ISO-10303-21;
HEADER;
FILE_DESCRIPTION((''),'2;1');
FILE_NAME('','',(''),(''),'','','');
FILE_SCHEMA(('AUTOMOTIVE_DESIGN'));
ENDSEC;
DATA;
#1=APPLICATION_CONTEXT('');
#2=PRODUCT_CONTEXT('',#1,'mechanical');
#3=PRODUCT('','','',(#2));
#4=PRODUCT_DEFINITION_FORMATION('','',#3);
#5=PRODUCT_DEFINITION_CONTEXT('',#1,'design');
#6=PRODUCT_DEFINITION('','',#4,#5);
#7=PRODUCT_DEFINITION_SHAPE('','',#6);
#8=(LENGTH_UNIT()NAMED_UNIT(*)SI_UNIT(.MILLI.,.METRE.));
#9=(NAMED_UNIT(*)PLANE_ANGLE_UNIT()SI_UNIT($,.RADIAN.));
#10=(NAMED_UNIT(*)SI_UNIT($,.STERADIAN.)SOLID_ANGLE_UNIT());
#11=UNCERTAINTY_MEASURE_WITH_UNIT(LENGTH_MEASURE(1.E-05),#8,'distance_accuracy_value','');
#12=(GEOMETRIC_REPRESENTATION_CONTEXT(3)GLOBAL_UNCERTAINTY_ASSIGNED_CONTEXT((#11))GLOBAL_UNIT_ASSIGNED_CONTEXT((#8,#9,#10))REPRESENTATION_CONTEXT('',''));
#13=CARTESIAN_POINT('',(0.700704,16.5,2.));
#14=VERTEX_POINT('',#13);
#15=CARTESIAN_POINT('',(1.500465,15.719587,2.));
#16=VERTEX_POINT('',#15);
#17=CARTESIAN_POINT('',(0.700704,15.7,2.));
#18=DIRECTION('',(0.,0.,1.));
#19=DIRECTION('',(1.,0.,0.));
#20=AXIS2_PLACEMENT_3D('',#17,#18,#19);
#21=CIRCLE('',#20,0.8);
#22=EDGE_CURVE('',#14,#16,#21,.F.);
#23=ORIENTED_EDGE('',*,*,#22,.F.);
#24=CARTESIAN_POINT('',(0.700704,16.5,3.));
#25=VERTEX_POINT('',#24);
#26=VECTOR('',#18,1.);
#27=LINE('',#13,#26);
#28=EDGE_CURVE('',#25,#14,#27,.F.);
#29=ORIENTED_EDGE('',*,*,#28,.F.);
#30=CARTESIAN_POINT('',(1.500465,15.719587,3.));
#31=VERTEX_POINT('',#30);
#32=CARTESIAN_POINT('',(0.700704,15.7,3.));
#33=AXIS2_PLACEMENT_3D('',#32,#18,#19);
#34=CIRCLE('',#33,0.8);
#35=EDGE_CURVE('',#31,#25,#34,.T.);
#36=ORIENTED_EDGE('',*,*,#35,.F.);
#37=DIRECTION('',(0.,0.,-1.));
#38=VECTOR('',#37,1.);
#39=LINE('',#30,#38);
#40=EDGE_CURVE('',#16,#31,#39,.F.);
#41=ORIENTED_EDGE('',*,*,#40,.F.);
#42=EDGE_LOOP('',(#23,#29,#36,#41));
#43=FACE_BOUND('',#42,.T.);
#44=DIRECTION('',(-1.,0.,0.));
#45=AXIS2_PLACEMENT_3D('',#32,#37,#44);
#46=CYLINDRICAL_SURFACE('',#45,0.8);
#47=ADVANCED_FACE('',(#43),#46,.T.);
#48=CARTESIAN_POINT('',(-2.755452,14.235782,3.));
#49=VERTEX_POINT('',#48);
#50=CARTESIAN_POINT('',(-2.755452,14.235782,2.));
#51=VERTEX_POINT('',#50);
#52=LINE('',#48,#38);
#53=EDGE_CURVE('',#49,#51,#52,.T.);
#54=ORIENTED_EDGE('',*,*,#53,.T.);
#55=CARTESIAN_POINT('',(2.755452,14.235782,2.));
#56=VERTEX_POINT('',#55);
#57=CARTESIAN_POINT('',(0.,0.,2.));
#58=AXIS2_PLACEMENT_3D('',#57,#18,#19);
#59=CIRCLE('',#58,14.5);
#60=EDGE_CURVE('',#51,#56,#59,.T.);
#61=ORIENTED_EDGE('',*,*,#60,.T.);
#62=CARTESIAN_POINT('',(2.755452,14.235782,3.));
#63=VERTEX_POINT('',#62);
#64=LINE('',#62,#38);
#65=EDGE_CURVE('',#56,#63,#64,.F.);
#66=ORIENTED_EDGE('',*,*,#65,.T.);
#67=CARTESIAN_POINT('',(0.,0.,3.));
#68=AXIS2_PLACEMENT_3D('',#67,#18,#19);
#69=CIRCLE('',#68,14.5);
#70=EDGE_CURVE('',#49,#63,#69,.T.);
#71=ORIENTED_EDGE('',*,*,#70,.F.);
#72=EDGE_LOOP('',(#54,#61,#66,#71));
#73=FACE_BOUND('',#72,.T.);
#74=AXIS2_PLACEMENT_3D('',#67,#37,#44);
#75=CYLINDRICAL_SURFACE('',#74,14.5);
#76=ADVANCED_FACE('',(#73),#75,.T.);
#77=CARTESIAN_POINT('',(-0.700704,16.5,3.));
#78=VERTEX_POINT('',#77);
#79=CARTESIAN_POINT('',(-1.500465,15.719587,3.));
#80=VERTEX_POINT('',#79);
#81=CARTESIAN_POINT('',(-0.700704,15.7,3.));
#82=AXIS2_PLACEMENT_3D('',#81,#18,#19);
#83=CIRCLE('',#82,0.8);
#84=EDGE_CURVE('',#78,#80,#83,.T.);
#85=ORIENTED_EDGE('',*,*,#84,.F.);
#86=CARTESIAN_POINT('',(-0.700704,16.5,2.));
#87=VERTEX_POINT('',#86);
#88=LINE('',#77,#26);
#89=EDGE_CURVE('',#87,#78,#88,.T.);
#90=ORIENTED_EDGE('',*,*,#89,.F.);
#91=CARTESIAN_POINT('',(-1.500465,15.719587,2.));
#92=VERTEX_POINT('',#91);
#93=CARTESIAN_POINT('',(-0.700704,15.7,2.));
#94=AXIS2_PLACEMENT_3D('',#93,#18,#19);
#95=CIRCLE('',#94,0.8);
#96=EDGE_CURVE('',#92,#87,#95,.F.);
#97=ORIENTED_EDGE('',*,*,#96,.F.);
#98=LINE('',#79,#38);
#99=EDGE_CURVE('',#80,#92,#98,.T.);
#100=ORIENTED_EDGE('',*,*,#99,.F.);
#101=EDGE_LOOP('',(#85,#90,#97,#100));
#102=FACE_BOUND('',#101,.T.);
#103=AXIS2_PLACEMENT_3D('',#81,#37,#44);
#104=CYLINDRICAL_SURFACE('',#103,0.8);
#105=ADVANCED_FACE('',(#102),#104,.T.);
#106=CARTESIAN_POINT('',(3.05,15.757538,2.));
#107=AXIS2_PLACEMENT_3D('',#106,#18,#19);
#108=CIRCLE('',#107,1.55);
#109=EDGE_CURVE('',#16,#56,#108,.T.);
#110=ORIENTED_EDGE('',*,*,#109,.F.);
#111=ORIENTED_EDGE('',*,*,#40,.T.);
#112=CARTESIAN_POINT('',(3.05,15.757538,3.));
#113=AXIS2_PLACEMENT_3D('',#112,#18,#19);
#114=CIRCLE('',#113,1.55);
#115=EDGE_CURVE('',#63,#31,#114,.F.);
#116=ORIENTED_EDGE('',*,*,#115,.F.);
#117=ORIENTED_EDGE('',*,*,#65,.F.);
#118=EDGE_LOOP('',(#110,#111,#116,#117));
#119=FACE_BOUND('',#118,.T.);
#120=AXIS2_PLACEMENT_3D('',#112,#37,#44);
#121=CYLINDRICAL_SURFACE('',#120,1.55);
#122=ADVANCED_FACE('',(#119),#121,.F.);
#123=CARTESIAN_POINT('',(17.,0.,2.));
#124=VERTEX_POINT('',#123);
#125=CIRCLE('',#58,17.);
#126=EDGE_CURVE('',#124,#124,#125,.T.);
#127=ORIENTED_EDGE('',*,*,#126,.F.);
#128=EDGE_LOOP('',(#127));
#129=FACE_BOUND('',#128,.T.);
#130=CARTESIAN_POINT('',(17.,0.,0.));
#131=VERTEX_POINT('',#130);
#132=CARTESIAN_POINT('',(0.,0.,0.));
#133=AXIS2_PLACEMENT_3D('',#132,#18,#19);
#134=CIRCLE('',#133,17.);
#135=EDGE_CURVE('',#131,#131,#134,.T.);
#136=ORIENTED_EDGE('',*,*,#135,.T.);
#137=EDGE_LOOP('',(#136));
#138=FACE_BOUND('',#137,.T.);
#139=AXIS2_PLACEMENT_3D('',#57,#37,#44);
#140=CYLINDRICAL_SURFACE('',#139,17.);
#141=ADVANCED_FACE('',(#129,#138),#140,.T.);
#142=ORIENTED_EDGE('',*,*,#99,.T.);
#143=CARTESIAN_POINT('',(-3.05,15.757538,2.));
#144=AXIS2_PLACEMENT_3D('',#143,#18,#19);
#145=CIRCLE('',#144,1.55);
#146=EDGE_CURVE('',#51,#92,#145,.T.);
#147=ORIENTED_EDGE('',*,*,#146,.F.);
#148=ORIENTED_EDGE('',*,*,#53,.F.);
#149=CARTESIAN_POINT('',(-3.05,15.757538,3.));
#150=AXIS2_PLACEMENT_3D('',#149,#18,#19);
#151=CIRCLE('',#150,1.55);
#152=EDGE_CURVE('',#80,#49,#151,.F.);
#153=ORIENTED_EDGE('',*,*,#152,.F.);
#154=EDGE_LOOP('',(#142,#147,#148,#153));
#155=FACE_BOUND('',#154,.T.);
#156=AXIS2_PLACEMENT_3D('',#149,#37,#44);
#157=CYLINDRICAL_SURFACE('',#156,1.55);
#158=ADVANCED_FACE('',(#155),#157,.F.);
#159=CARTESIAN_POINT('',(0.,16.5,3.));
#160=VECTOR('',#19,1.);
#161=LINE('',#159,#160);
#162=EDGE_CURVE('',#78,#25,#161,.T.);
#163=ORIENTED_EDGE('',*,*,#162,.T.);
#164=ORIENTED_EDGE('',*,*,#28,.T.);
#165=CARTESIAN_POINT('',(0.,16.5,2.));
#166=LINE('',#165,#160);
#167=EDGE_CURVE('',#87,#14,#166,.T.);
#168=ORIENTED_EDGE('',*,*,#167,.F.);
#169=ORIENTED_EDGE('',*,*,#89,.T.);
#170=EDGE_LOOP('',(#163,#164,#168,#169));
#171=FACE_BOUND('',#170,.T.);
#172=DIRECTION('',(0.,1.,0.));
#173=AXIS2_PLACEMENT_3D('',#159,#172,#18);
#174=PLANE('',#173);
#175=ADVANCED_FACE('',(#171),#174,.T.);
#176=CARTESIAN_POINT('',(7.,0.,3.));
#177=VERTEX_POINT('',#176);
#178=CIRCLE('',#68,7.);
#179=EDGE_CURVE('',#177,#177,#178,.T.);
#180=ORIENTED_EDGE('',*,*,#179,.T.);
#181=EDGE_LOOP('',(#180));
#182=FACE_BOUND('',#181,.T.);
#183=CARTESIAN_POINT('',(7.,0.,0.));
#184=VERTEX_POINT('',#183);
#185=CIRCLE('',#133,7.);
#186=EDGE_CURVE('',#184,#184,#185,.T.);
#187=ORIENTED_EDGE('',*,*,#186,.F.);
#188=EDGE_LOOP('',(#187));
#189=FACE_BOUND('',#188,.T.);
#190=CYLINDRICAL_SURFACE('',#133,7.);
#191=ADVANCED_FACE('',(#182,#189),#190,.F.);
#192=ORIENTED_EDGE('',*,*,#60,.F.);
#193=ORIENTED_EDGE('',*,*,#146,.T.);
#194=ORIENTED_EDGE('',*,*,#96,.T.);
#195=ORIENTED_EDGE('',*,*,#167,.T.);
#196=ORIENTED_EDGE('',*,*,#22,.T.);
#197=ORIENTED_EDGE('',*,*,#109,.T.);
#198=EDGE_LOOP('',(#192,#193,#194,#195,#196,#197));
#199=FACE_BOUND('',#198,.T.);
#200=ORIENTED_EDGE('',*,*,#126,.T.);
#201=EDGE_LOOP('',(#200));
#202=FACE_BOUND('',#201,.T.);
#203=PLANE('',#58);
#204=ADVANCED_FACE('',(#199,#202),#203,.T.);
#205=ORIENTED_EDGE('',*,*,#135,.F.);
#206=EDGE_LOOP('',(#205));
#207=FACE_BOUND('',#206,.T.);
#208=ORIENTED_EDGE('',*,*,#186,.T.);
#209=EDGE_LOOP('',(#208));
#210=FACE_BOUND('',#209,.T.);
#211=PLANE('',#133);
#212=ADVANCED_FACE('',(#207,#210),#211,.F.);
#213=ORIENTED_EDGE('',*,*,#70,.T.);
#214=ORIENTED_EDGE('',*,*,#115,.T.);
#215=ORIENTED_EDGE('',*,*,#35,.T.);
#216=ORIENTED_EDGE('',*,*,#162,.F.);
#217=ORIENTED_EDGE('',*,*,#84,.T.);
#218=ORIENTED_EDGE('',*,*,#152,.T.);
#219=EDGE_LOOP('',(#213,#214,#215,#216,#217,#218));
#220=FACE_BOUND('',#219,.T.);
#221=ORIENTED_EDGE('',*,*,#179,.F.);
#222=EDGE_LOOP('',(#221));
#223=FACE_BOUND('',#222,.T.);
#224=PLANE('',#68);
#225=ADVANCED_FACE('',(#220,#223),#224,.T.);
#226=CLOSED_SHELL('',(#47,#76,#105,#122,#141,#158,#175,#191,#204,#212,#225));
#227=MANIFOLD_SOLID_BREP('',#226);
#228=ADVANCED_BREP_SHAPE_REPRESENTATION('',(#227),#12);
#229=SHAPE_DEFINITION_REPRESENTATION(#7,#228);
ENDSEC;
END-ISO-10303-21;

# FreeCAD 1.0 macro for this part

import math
import FreeCAD as App
import Part
import Sketcher
from FreeCAD import Vector
Q = App.Units.Quantity


def edges_at(feature, points):
    """Names of the edges that pass closest to the given points."""
    edges = feature.Shape.Edges
    near = lambda p: min(range(len(edges)), key=lambda i: edges[i].distToShape(Part.Vertex(*p))[0])
    return sorted({f"Edge{near(p) + 1}" for p in points})

doc = App.newDocument("Part")
body = doc.addObject("PartDesign::Body", "Body")

sketch1 = body.newObject("Sketcher::SketchObject", "Sketch")
sketch1.AttachmentSupport = (doc.getObject("XY_Plane"), [""])
sketch1.MapMode = "FlatFace"
sketch1.addGeometry(Part.Circle(Vector(0, 0, 0), Vector(0, 0, 1), 17), False)
sketch1.addConstraint(Sketcher.Constraint("Coincident", 0, 3, -1, 1))
sketch1.addConstraint(Sketcher.Constraint("Diameter", 0, Q("34 mm")))
pad1 = body.newObject("PartDesign::Pad", "Pad")
pad1.Profile = sketch1
pad1.Length = 2

sketch2 = body.newObject("Sketcher::SketchObject", "Sketch001")
sketch2.AttachmentSupport = (doc.getObject("XY_Plane"), [""])
sketch2.MapMode = "FlatFace"
sketch2.AttachmentOffset = App.Placement(Vector(0, 0, 2), App.Rotation())
sketch2.addGeometry(Part.ArcOfCircle(Part.Circle(Vector(0, 0, 0), Vector(0, 0, 1), 14.5), math.radians(96), math.radians(360)), False)
sketch2.addGeometry(Part.ArcOfCircle(Part.Circle(Vector(0, 0, 0), Vector(0, 0, 1), 14.5), math.radians(0), math.radians(84)), False)
sketch2.addGeometry(Part.LineSegment(Vector(1.5, 14.4, 0), Vector(1.5, 16.5, 0)), False)
sketch2.addGeometry(Part.LineSegment(Vector(1.5, 16.5, 0), Vector(-1.5, 16.5, 0)), False)
sketch2.addGeometry(Part.LineSegment(Vector(-1.5, 16.5, 0), Vector(-1.5, 14.4, 0)), False)
sketch2.addConstraint(Sketcher.Constraint("Tangent", 0, 2, 1, 1))
sketch2.addConstraint(Sketcher.Constraint("Coincident", 1, 2, 2, 1))
sketch2.addConstraint(Sketcher.Constraint("Coincident", 2, 2, 3, 1))
sketch2.addConstraint(Sketcher.Constraint("Coincident", 3, 2, 4, 1))
sketch2.addConstraint(Sketcher.Constraint("Coincident", 4, 2, 0, 1))
sketch2.addConstraint(Sketcher.Constraint("Vertical", 2))
sketch2.addConstraint(Sketcher.Constraint("Horizontal", 3))
sketch2.addConstraint(Sketcher.Constraint("Vertical", 4))
sketch2.addConstraint(Sketcher.Constraint("Coincident", 0, 3, -1, 1))
sketch2.addConstraint(Sketcher.Constraint("Equal", 0, 1))
sketch2.addConstraint(Sketcher.Constraint("PointOnObject", 0, 2, -1))
sketch2.addConstraint(Sketcher.Constraint("Horizontal", 1, 2, 4, 2))
sketch2.addConstraint(Sketcher.Constraint("Radius", 0, Q("14.5 mm")))
sketch2.addConstraint(Sketcher.Constraint("DistanceX", 3, 2, 3, 1, Q("3 mm")))
sketch2.addConstraint(Sketcher.Constraint("DistanceY", -1, 1, 2, 2, Q("16.5 mm")))
pad2 = body.newObject("PartDesign::Pad", "Pad001")
pad2.Profile = sketch2
pad2.Length = 1
doc.recompute()

fillet = body.newObject("PartDesign::Fillet", "Fillet")
fillet.Base = (pad2, edges_at(pad2, [(-1.5, 14.422, 2.5), (1.5, 14.422, 2.5)]))
fillet.Radius = 1.55
doc.recompute()

fillet2 = body.newObject("PartDesign::Fillet", "Fillet001")
fillet2.Base = (fillet, edges_at(fillet, [(1.5, 16.5, 2.5), (-1.5, 16.5, 2.5)]))
fillet2.Radius = 0.8

sketch3 = body.newObject("Sketcher::SketchObject", "Sketch002")
sketch3.AttachmentSupport = (doc.getObject("XY_Plane"), [""])
sketch3.MapMode = "FlatFace"
sketch3.AttachmentOffset = App.Placement(Vector(0, 0, 3), App.Rotation())
sketch3.addGeometry(Part.Circle(Vector(0, 0, 0), Vector(0, 0, 1), 7), False)
sketch3.addConstraint(Sketcher.Constraint("Coincident", 0, 3, -1, 1))
sketch3.addConstraint(Sketcher.Constraint("Diameter", 0, Q("14 mm")))
pocket1 = body.newObject("PartDesign::Pocket", "Pocket")
pocket1.Profile = sketch3
pocket1.Type = "ThroughAll"

doc.recompute()
